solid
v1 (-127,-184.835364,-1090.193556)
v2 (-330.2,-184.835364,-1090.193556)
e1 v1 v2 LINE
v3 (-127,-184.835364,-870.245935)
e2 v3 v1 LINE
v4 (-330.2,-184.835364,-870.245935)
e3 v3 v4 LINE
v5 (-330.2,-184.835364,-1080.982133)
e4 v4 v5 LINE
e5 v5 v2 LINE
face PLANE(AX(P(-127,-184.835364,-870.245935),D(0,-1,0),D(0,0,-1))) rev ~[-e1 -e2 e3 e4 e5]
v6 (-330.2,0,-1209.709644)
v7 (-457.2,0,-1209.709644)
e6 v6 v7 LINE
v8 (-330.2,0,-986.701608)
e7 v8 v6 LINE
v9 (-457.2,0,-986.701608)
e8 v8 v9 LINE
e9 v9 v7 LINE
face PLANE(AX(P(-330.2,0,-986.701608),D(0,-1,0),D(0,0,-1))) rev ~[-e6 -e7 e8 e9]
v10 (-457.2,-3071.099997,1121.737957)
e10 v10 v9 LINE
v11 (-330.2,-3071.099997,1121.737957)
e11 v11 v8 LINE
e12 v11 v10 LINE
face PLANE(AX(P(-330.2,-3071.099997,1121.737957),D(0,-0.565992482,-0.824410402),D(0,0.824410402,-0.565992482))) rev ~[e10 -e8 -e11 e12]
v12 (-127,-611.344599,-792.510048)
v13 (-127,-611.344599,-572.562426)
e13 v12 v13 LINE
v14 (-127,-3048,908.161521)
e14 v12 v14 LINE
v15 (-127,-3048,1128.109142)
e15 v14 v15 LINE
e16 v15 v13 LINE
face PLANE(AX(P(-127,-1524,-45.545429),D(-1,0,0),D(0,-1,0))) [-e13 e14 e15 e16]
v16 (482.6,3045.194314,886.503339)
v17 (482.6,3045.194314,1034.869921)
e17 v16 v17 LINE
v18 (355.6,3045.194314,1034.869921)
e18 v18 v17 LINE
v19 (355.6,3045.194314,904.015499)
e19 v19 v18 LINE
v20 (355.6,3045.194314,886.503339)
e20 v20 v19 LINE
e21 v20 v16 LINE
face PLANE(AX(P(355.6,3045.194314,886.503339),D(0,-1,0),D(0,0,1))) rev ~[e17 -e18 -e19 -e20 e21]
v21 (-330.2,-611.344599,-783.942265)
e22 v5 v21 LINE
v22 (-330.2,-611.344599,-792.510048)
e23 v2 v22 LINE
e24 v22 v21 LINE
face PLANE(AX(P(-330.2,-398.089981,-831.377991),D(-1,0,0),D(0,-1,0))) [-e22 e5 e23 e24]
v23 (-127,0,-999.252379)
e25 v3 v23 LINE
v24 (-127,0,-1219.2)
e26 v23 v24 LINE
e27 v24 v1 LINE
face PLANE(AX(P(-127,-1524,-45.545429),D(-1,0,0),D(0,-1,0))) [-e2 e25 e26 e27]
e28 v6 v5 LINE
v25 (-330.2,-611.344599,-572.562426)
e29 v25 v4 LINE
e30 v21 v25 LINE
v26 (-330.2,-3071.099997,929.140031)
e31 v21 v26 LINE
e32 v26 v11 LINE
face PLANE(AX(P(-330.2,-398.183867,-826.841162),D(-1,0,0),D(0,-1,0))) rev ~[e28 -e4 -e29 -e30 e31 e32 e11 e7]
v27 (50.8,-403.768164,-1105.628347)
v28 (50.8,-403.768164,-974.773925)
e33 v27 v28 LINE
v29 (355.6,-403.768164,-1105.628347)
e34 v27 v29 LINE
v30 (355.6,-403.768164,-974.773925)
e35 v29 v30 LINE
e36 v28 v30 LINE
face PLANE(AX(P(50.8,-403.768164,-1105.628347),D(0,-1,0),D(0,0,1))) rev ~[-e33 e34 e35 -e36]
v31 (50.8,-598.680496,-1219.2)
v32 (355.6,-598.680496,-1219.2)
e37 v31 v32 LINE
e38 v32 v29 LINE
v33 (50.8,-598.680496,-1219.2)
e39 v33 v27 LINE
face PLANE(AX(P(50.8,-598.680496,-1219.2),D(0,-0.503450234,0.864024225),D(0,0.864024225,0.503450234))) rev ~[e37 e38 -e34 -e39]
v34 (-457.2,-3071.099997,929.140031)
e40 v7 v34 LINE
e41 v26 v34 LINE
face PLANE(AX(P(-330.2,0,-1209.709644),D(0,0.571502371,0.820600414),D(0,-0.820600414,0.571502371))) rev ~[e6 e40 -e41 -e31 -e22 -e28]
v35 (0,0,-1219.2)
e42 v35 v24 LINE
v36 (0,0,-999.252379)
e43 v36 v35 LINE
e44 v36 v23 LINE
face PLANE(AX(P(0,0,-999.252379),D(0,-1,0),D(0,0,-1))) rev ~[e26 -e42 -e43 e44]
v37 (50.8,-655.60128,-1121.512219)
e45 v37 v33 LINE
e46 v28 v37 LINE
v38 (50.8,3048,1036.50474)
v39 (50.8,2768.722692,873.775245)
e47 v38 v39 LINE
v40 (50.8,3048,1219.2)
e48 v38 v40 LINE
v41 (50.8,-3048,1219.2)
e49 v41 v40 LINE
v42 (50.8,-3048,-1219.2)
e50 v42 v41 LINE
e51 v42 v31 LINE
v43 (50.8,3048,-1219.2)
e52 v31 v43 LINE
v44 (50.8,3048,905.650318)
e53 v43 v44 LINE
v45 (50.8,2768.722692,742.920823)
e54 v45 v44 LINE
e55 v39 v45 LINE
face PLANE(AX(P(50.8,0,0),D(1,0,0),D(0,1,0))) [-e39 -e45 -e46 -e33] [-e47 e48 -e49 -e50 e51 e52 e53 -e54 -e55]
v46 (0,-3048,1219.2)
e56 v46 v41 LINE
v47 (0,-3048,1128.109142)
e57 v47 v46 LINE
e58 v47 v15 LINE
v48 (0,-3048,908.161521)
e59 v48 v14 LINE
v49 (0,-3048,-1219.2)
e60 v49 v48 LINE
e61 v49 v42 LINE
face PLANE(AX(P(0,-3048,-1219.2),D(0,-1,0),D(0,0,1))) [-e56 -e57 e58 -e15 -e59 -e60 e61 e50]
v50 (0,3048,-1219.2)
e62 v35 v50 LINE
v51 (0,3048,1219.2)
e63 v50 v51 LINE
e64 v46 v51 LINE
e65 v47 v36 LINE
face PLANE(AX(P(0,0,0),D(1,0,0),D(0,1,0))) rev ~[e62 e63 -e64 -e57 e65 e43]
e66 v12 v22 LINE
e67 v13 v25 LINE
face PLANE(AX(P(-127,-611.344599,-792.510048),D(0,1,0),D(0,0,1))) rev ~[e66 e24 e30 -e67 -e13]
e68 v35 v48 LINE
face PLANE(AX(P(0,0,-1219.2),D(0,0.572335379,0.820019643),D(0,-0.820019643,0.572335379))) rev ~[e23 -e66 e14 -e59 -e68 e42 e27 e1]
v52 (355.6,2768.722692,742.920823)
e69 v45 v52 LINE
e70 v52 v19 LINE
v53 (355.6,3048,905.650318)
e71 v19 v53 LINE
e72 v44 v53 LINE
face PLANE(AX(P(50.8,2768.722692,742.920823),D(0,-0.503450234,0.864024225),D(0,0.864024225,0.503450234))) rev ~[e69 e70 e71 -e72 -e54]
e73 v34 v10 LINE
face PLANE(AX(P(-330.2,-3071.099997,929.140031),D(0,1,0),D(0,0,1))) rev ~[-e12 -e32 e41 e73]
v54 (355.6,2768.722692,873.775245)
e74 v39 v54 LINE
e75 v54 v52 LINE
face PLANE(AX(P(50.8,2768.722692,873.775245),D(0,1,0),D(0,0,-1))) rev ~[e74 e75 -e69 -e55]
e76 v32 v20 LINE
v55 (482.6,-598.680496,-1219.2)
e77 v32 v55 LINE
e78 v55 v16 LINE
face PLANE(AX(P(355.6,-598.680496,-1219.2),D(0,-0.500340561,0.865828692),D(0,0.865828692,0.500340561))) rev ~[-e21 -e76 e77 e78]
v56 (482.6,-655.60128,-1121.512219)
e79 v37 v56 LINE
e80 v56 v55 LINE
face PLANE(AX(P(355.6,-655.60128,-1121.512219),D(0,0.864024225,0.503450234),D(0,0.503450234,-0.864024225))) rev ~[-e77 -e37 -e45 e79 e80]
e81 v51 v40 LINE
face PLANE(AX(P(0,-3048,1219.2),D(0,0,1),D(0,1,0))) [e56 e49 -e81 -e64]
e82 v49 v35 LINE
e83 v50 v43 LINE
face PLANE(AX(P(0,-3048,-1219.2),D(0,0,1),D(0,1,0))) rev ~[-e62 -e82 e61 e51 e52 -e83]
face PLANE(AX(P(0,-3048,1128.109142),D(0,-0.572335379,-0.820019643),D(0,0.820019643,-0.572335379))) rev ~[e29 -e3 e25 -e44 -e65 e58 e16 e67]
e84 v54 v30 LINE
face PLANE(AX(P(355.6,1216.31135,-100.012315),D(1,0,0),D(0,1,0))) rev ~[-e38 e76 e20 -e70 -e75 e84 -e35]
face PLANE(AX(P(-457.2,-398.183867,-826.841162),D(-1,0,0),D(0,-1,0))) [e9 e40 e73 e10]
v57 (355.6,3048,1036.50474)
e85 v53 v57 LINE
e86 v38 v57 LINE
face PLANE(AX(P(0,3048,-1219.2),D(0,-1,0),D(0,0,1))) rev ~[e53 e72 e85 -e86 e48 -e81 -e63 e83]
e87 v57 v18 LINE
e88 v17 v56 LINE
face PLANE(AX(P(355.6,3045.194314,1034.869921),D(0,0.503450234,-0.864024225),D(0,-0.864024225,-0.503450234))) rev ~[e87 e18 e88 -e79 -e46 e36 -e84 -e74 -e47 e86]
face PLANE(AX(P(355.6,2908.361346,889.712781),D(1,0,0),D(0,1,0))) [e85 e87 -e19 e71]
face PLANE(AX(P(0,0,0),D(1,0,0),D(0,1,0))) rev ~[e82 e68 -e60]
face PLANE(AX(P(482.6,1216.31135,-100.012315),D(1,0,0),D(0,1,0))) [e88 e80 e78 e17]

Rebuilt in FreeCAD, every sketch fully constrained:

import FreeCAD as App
import Part
import Sketcher

V = App.Vector
Q = App.Units.Quantity


def add_polygon(sketch, points):
    """Adds a closed chain of lines whose ends are joined by coincident constraints."""
    first, n = sketch.GeometryCount, len(points)
    for a, b in zip(points, points[1:] + points[:1]):
        sketch.addGeometry(Part.LineSegment(App.Vector(*a, 0), App.Vector(*b, 0)), False)
    for i in range(n):
        sketch.addConstraint(Sketcher.Constraint("Coincident", first + i, 2, first + (i + 1) % n, 1))

doc = App.newDocument("Part")
body = doc.addObject("PartDesign::Body", "Body")

sketch1 = body.newObject("Sketcher::SketchObject", "Sketch")
sketch1.AttachmentSupport = (doc.getObject("YZ_Plane"), [""])
sketch1.MapMode = "FlatFace"
add_polygon(sketch1, [(-3048, 1219), (-3048, -1219), (3048, -1219), (3048, 1219)])
sketch1.addConstraint([
    Sketcher.Constraint("Vertical", 0),
    Sketcher.Constraint("Horizontal", 1),
    Sketcher.Constraint("Vertical", 2),
    Sketcher.Constraint("Horizontal", 3),
    Sketcher.Constraint("Symmetric", 0, 2, 2, 2, -1, 1),
    Sketcher.Constraint("DistanceX", 1, 1, 1, 2, Q("240 in")),
    Sketcher.Constraint("DistanceY", 0, 2, 0, 1, Q("96 in")),
])
pad1 = body.newObject("PartDesign::Pad", "Pad")
pad1.Profile = sketch1
pad1.Length = Q("2 in")

sketch2 = body.newObject("Sketcher::SketchObject", "Sketch001")
sketch2.AttachmentSupport = (doc.getObject("YZ_Plane"), [""])
sketch2.MapMode = "FlatFace"
sketch2.AttachmentOffset = App.Placement(V(0, 0, 2 * 25.4), App.Rotation())
add_polygon(sketch2, [(2769, 743), (3048, 906), (3048, 1037), (2769, 874)])
add_polygon(sketch2, [(-656, -1122), (-599, -1219), (-404, -1106), (-404, -975)])
sketch2.addConstraint([
    Sketcher.Constraint("Vertical", 1),
    Sketcher.Constraint("Vertical", 3),
    Sketcher.Constraint("Vertical", 6),
    Sketcher.Constraint("Parallel", 0, 2),
    Sketcher.Constraint("Perpendicular", 2, 4),
    Sketcher.Constraint("Perpendicular", 4, 5),
    Sketcher.Constraint("Parallel", 5, 7),
    Sketcher.Constraint("Equal", 3, 6),
    Sketcher.Constraint("DistanceX", -1, 1, 0, 2, Q("120 in")),
    Sketcher.Constraint("DistanceY", 4, 2, -1, 1, Q("48 in")),
    Sketcher.Constraint("DistanceY", -1, 1, 2, 2, Q("34.4006002 in")),
    Sketcher.Constraint("Distance", 0, Q("323.228562 mm")),
    Sketcher.Constraint("Distance", 4, Q("113.061391 mm")),
    Sketcher.Constraint("Distance", 5, Q("225.586652 mm")),
    Sketcher.Constraint("Distance", 7, Q("291.465341 mm")),
    Sketcher.Constraint("DistanceX", 7, 2, -1, 1, Q("655.60128 mm")),
])
pad2 = body.newObject("PartDesign::Pad", "Pad001")
pad2.Profile = sketch2
pad2.Length = Q("12 in")

sketch3 = body.newObject("Sketcher::SketchObject", "Sketch002")
sketch3.AttachmentSupport = (doc.getObject("YZ_Plane"), [""])
sketch3.MapMode = "FlatFace"
add_polygon(sketch3, [(0, -1219), (-3048, 908), (-3048, 1128), (0, -999)])
sketch3.addConstraint([
    Sketcher.Constraint("Vertical", 1),
    Sketcher.Constraint("Vertical", 3),
    Sketcher.Constraint("PointOnObject", 2, 2, -2),
    Sketcher.Constraint("Parallel", 0, 2),
    Sketcher.Constraint("DistanceX", 0, 2, -1, 1, Q("120 in")),
    Sketcher.Constraint("DistanceY", 3, 2, -1, 1, Q("48 in")),
    Sketcher.Constraint("DistanceY", 1, 1, 1, 2, Q("219.947621 mm")),
    Sketcher.Constraint("DistanceY", 2, 2, 0, 2, Q("1907.4139 mm")),
])
pad3 = body.newObject("PartDesign::Pad", "Pad002")
pad3.Profile = sketch3
pad3.Length = Q("5 in")
pad3.Reversed = True

sketch4 = body.newObject("Sketcher::SketchObject", "Sketch003")
sketch4.AttachmentSupport = (doc.getObject("YZ_Plane"), [""])
sketch4.MapMode = "FlatFace"
sketch4.AttachmentOffset = App.Placement(V(0, 0, -5 * 25.4), App.Rotation())
add_polygon(sketch4, [(-611, -573), (-185, -870), (-185, -1090), (-611, -793)])
sketch4.addConstraint([
    Sketcher.Constraint("Vertical", 1),
    Sketcher.Constraint("Vertical", 3),
    Sketcher.Constraint("Parallel", 0, 2),
    Sketcher.Constraint("DistanceY", 1, 2, 1, 1, Q("219.947621 mm")),
    Sketcher.Constraint("DistanceX", 2, 2, -1, 1, Q("611.344599 mm")),
    Sketcher.Constraint("DistanceY", 1, 2, 2, 2, Q("297.683509 mm")),
    Sketcher.Constraint("Distance", 0, Q("520.120754 mm")),
    Sketcher.Constraint("DistanceY", 0, 2, -1, 1, Q("870.245935 mm")),
])
pad4 = body.newObject("PartDesign::Pad", "Pad003")
pad4.Profile = sketch4
pad4.Length = Q("8 in")
pad4.Reversed = True

sketch5 = body.newObject("Sketcher::SketchObject", "Sketch004")
sketch5.AttachmentSupport = (doc.getObject("YZ_Plane"), [""])
sketch5.MapMode = "FlatFace"
sketch5.AttachmentOffset = App.Placement(V(0, 0, -13 * 25.4), App.Rotation())
add_polygon(sketch5, [(-3071, 929), (-3071, 1122), (0, -987), (0, -1210)])
sketch5.addConstraint([
    Sketcher.Constraint("Vertical", 0),
    Sketcher.Constraint("Vertical", 2),
    Sketcher.Constraint("PointOnObject", 1, 2, -2),
    Sketcher.Constraint("DistanceY", 2, 2, 0, 2, Q("2331.447601 mm")),
    Sketcher.Constraint("Distance", 3, Q("3742.50359 mm")),
    Sketcher.Constraint("DistanceY", 0, 1, 0, 2, Q("192.597926 mm")),
    Sketcher.Constraint("DistanceY", 2, 2, 2, 1, Q("223.008037 mm")),
    Sketcher.Constraint("DistanceY", -1, 1, 3, 2, Q("929.140031 mm")),
])
pad5 = body.newObject("PartDesign::Pad", "Pad004")
pad5.Profile = sketch5
pad5.Length = Q("5 in")
pad5.Reversed = True

sketch6 = body.newObject("Sketcher::SketchObject", "Sketch005")
sketch6.AttachmentSupport = (doc.getObject("YZ_Plane"), [""])
sketch6.MapMode = "FlatFace"
sketch6.AttachmentOffset = App.Placement(V(0, 0, 14 * 25.4), App.Rotation())
add_polygon(sketch6, [(3045, 1035), (-656, -1122), (-599, -1219), (3045, 887)])
sketch6.addConstraint([
    Sketcher.Constraint("Vertical", 3),
    Sketcher.Constraint("Perpendicular", 0, 1),
    Sketcher.Constraint("DistanceY", 1, 2, -1, 1, Q("48 in")),
    Sketcher.Constraint("Distance", 0, Q("4283.208139 mm")),
    Sketcher.Constraint("Distance", 1, Q("113.061391 mm")),
    Sketcher.Constraint("Distance", 2, Q("4208.540149 mm")),
    Sketcher.Constraint("DistanceY", 3, 1, 3, 2, Q("148.366582 mm")),
    Sketcher.Constraint("DistanceX", 0, 2, -1, 1, Q("655.60128 mm")),
])
pad6 = body.newObject("PartDesign::Pad", "Pad005")
pad6.Profile = sketch6
pad6.Length = Q("5 in")

doc.recompute()
